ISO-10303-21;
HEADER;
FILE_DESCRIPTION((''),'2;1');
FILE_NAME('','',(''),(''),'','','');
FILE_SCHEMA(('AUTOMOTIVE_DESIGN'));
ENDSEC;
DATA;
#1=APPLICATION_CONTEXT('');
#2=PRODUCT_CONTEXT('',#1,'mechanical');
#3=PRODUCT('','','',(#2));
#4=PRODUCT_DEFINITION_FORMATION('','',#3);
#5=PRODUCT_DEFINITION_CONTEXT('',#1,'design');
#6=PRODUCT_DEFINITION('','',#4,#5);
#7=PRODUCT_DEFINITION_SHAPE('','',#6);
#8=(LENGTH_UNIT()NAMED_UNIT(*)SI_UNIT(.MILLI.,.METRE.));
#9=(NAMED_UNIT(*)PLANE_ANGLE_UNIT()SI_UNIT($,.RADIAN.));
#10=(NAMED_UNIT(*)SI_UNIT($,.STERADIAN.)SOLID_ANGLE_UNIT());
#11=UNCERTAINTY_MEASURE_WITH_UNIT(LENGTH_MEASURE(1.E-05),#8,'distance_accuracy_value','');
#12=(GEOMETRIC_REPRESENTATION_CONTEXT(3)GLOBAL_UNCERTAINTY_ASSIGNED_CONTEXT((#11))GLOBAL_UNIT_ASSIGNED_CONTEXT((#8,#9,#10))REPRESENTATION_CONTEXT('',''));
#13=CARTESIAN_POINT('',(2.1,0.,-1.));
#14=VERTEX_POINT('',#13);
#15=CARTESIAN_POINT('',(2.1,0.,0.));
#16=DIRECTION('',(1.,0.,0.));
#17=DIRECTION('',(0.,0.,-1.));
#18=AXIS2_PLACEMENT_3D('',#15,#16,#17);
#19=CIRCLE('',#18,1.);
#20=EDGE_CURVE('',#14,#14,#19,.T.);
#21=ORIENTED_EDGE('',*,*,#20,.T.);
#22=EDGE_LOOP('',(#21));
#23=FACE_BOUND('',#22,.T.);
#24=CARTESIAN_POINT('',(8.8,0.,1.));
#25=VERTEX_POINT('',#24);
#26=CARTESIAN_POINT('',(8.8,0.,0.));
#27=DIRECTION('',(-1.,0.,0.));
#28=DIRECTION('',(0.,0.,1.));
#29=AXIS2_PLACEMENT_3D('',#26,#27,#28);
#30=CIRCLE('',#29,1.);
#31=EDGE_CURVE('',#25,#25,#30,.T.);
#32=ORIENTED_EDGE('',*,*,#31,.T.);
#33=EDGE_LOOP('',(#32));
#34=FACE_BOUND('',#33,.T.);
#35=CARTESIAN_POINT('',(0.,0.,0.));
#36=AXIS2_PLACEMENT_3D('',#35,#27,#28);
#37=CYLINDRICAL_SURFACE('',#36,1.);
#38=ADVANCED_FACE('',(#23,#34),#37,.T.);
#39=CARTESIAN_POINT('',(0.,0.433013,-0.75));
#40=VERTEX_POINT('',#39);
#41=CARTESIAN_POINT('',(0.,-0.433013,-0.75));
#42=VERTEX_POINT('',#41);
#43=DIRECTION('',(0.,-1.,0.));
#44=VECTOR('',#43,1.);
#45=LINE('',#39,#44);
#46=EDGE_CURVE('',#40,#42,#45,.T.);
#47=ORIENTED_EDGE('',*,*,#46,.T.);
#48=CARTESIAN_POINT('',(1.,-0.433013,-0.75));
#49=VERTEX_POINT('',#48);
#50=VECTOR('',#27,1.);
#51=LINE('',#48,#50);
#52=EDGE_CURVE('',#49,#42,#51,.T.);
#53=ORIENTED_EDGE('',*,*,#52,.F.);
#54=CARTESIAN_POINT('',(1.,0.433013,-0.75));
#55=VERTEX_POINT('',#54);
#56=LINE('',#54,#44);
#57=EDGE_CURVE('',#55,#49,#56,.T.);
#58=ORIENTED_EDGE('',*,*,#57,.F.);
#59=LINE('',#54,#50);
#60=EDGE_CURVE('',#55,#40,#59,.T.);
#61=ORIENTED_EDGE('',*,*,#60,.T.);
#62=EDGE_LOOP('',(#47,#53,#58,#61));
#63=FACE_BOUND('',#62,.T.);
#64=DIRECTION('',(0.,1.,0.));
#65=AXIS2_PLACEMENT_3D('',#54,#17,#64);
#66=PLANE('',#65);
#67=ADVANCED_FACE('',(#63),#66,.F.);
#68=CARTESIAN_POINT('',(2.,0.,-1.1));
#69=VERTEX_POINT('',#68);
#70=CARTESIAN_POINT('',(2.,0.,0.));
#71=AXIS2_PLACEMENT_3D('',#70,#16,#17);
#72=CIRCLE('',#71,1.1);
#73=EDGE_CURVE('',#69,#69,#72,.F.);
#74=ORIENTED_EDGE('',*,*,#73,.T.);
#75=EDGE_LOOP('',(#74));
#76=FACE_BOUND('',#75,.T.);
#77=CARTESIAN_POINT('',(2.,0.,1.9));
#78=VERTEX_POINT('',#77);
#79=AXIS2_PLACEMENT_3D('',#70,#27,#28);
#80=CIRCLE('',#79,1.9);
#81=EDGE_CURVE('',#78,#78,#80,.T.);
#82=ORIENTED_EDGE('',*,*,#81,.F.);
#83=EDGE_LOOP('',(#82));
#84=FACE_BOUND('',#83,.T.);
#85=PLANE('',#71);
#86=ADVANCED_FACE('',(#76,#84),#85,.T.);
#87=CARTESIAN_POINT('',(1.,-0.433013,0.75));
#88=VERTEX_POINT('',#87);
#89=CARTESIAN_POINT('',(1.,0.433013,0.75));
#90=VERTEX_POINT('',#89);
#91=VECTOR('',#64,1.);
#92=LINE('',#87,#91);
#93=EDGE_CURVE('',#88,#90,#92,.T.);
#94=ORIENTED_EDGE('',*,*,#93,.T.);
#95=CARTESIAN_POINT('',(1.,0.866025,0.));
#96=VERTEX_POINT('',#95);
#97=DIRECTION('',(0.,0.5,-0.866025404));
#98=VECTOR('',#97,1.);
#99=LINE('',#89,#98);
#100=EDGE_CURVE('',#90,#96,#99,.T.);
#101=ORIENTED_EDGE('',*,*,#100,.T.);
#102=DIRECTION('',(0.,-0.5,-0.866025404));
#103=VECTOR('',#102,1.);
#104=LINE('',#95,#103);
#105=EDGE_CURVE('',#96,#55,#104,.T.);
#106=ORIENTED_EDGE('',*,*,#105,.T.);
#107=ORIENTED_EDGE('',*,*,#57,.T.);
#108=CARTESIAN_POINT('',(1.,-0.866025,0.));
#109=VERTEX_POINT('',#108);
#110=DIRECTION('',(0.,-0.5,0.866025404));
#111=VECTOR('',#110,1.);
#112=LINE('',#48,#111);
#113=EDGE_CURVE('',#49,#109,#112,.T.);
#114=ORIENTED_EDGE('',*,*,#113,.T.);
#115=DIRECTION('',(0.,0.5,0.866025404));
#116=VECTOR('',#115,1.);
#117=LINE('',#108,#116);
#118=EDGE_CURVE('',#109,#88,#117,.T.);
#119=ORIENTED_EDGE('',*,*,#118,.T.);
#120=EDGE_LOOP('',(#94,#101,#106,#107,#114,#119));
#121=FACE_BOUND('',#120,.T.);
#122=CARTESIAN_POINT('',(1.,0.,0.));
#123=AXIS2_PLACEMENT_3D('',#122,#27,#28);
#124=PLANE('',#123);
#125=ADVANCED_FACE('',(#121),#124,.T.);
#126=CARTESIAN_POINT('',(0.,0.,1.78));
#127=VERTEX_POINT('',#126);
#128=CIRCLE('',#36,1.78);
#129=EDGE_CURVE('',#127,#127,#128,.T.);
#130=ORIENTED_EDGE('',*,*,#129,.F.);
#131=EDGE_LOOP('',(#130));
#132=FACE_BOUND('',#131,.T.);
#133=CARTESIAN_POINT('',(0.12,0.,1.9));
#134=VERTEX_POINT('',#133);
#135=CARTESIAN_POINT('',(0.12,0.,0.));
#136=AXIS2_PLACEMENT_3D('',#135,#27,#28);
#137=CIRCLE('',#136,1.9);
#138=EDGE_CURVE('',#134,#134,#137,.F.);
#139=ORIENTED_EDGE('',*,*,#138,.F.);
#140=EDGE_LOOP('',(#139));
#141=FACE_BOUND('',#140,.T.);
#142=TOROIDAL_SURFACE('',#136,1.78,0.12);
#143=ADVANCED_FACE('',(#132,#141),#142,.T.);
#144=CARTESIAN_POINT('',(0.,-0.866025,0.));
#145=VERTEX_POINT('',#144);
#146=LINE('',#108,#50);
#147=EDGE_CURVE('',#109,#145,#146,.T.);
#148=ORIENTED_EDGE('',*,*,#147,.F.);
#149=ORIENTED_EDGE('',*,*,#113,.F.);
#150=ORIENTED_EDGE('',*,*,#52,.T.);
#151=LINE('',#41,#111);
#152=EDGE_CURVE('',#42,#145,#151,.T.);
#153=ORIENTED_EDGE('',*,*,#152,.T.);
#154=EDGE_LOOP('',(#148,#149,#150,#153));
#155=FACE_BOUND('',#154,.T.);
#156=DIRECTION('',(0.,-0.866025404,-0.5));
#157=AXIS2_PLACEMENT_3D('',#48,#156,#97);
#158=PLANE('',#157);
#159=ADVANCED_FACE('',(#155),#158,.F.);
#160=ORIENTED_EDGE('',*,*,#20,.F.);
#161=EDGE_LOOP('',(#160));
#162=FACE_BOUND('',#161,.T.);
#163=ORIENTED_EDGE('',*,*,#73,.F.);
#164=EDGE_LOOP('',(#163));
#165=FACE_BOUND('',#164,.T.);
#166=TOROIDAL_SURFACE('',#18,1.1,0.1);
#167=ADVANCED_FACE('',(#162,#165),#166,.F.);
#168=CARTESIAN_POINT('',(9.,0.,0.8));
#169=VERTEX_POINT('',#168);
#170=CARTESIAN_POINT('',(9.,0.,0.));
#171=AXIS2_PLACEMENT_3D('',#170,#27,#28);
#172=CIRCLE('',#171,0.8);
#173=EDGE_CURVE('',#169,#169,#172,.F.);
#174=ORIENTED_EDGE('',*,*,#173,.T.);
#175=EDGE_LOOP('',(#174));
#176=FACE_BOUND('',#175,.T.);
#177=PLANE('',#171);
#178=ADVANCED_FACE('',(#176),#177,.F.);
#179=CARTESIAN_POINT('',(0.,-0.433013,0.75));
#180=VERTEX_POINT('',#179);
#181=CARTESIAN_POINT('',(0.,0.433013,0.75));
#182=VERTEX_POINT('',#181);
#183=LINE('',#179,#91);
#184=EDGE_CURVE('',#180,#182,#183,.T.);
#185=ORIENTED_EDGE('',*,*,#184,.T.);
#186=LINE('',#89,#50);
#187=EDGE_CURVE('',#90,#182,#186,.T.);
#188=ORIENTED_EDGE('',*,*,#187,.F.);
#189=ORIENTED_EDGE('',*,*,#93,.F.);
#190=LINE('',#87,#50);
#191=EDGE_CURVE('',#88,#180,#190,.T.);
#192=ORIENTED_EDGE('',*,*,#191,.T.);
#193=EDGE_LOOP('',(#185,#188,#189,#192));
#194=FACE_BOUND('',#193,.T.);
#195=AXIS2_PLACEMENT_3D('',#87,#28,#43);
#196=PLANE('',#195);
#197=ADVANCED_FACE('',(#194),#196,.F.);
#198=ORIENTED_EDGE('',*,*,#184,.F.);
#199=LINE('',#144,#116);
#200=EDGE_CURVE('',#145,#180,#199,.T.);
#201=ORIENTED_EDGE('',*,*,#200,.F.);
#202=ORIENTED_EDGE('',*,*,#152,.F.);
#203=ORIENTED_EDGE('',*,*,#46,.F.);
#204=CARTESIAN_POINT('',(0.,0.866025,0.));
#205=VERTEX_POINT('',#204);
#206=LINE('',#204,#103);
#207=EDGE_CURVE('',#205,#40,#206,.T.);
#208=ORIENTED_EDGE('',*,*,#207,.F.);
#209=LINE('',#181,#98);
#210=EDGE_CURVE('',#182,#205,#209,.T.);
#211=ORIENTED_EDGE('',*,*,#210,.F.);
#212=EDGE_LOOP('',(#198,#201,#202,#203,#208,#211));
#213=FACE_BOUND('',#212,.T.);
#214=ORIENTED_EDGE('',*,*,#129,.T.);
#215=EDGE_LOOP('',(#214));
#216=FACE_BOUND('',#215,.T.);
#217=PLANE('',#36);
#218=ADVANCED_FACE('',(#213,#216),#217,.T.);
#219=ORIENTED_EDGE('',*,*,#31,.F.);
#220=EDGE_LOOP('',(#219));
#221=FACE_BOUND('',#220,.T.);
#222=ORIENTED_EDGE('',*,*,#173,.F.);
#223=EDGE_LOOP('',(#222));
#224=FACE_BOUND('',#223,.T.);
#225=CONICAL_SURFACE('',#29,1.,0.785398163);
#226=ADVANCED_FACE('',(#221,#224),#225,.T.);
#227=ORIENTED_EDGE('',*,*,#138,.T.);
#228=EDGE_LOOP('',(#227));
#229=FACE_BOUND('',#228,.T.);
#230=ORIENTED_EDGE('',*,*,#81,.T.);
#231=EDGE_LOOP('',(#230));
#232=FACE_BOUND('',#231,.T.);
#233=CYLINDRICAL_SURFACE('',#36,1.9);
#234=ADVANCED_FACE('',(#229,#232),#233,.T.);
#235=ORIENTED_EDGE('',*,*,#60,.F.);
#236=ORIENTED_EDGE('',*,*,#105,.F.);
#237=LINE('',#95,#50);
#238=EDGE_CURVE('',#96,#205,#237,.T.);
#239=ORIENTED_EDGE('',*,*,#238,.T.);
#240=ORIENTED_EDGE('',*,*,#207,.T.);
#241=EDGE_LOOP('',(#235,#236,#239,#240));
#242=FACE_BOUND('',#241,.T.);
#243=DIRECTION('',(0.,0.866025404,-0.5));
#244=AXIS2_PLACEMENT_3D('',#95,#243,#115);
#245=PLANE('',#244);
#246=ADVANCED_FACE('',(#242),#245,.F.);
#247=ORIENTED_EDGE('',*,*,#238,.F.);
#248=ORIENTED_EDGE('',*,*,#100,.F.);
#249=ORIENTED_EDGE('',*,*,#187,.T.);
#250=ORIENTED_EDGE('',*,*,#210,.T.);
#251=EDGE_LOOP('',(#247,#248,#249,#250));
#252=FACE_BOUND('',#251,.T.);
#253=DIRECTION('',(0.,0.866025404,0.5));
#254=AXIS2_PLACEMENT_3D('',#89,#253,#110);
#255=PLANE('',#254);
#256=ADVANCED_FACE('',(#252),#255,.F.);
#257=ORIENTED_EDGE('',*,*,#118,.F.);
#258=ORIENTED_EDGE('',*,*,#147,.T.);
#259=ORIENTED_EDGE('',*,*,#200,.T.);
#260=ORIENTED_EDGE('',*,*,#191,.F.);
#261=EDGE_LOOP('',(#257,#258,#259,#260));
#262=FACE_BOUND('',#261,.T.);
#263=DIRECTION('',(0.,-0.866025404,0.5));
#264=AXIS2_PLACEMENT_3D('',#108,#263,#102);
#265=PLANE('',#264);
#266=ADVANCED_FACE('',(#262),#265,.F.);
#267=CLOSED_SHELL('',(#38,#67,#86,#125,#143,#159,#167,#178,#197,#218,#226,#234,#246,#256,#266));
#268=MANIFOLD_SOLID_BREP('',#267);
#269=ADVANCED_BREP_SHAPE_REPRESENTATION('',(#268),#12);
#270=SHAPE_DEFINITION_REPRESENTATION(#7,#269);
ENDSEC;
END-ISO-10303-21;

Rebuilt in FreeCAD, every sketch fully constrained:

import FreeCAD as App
import Part
import Sketcher
from FreeCAD import Vector
Q = App.Units.Quantity


def edges_at(feature, points):
    """Names of the edges that pass closest to the given points."""
    edges = feature.Shape.Edges
    near = lambda p: min(range(len(edges)), key=lambda i: edges[i].distToShape(Part.Vertex(*p))[0])
    return sorted({f"Edge{near(p) + 1}" for p in points})


def add_polygon(sketch, points):
    """Adds a closed chain of lines whose ends are joined by coincident constraints."""
    first, n = sketch.GeometryCount, len(points)
    for a, b in zip(points, points[1:] + points[:1]):
        sketch.addGeometry(Part.LineSegment(App.Vector(*a, 0), App.Vector(*b, 0)), False)
    for i in range(n):
        sketch.addConstraint(Sketcher.Constraint("Coincident", first + i, 2, first + (i + 1) % n, 1))

doc = App.newDocument("Part")
body = doc.addObject("PartDesign::Body", "Body")

sketch1 = body.newObject("Sketcher::SketchObject", "Sketch")
sketch1.AttachmentSupport = (doc.getObject("XY_Plane"), [""])
sketch1.MapMode = "FlatFace"
add_polygon(sketch1, [(9, 0), (9, 1), (2, 1), (2, 1.9), (0, 1.9), (0, 0)])
sketch1.addConstraint([
    Sketcher.Constraint("Vertical", 0),
    Sketcher.Constraint("Horizontal", 1),
    Sketcher.Constraint("Vertical", 2),
    Sketcher.Constraint("Horizontal", 3),
    Sketcher.Constraint("Vertical", 4),
    Sketcher.Constraint("Horizontal", 5),
    Sketcher.Constraint("Coincident", 4, 2, -1, 1),
    Sketcher.Constraint("DistanceX", 1, 2, 1, 1, 7.0),
    Sketcher.Constraint("DistanceX", 3, 2, 3, 1, 2.0),
    Sketcher.Constraint("DistanceY", 0, 1, 0, 2, 1.0),
    Sketcher.Constraint("DistanceY", 2, 1, 2, 2, 0.9),
])
revolution = body.newObject("PartDesign::Revolution", "Revolution")
revolution.Profile = sketch1
revolution.ReferenceAxis = (sketch1, ["H_Axis"])
revolution.Angle = 360
doc.recompute()

fillet = body.newObject("PartDesign::Fillet", "Fillet")
fillet.Base = (revolution, edges_at(revolution, [(2, 0, -1)]))
fillet.Radius = 0.1
doc.recompute()

fillet2 = body.newObject("PartDesign::Fillet", "Fillet001")
fillet2.Base = (fillet, edges_at(fillet, [(0, 0, -1.9)]))
fillet2.Radius = 0.12
doc.recompute()

chamfer = body.newObject("PartDesign::Chamfer", "Chamfer")
chamfer.Base = (fillet2, edges_at(fillet2, [(9, 0, -1)]))
chamfer.Size = 0.2

sketch2 = body.newObject("Sketcher::SketchObject", "Sketch001")
sketch2.AttachmentSupport = (doc.getObject("YZ_Plane"), [""])
sketch2.MapMode = "FlatFace"
add_polygon(sketch2, [(0.9, 0), (0.4, -0.8), (-0.4, -0.8), (-0.9, 0), (-0.4, 0.8), (0.4, 0.8)])
sketch2.addConstraint([
    Sketcher.Constraint("Horizontal", 1),
    Sketcher.Constraint("Horizontal", 4),
    Sketcher.Constraint("Symmetric", 0, 2, 3, 2, -1, 1),
    Sketcher.Constraint("Symmetric", 2, 2, 5, 2, -1, 1),
    Sketcher.Constraint("PointOnObject", 2, 2, -1),
    Sketcher.Constraint("Parallel", 2, 5),
    Sketcher.Constraint("Vertical", 1, 2, 3, 2),
    Sketcher.Constraint("Angle", 0, Q("-120 deg")),
    Sketcher.Constraint("DistanceY", 1, 2, 3, 2, 1.5),
    Sketcher.Constraint("DistanceX", 1, 2, 1, 1, 0.866025),
])
pocket1 = body.newObject("PartDesign::Pocket", "Pocket")
pocket1.Profile = sketch2
pocket1.Length = 1
pocket1.Reversed = True

doc.recompute()
